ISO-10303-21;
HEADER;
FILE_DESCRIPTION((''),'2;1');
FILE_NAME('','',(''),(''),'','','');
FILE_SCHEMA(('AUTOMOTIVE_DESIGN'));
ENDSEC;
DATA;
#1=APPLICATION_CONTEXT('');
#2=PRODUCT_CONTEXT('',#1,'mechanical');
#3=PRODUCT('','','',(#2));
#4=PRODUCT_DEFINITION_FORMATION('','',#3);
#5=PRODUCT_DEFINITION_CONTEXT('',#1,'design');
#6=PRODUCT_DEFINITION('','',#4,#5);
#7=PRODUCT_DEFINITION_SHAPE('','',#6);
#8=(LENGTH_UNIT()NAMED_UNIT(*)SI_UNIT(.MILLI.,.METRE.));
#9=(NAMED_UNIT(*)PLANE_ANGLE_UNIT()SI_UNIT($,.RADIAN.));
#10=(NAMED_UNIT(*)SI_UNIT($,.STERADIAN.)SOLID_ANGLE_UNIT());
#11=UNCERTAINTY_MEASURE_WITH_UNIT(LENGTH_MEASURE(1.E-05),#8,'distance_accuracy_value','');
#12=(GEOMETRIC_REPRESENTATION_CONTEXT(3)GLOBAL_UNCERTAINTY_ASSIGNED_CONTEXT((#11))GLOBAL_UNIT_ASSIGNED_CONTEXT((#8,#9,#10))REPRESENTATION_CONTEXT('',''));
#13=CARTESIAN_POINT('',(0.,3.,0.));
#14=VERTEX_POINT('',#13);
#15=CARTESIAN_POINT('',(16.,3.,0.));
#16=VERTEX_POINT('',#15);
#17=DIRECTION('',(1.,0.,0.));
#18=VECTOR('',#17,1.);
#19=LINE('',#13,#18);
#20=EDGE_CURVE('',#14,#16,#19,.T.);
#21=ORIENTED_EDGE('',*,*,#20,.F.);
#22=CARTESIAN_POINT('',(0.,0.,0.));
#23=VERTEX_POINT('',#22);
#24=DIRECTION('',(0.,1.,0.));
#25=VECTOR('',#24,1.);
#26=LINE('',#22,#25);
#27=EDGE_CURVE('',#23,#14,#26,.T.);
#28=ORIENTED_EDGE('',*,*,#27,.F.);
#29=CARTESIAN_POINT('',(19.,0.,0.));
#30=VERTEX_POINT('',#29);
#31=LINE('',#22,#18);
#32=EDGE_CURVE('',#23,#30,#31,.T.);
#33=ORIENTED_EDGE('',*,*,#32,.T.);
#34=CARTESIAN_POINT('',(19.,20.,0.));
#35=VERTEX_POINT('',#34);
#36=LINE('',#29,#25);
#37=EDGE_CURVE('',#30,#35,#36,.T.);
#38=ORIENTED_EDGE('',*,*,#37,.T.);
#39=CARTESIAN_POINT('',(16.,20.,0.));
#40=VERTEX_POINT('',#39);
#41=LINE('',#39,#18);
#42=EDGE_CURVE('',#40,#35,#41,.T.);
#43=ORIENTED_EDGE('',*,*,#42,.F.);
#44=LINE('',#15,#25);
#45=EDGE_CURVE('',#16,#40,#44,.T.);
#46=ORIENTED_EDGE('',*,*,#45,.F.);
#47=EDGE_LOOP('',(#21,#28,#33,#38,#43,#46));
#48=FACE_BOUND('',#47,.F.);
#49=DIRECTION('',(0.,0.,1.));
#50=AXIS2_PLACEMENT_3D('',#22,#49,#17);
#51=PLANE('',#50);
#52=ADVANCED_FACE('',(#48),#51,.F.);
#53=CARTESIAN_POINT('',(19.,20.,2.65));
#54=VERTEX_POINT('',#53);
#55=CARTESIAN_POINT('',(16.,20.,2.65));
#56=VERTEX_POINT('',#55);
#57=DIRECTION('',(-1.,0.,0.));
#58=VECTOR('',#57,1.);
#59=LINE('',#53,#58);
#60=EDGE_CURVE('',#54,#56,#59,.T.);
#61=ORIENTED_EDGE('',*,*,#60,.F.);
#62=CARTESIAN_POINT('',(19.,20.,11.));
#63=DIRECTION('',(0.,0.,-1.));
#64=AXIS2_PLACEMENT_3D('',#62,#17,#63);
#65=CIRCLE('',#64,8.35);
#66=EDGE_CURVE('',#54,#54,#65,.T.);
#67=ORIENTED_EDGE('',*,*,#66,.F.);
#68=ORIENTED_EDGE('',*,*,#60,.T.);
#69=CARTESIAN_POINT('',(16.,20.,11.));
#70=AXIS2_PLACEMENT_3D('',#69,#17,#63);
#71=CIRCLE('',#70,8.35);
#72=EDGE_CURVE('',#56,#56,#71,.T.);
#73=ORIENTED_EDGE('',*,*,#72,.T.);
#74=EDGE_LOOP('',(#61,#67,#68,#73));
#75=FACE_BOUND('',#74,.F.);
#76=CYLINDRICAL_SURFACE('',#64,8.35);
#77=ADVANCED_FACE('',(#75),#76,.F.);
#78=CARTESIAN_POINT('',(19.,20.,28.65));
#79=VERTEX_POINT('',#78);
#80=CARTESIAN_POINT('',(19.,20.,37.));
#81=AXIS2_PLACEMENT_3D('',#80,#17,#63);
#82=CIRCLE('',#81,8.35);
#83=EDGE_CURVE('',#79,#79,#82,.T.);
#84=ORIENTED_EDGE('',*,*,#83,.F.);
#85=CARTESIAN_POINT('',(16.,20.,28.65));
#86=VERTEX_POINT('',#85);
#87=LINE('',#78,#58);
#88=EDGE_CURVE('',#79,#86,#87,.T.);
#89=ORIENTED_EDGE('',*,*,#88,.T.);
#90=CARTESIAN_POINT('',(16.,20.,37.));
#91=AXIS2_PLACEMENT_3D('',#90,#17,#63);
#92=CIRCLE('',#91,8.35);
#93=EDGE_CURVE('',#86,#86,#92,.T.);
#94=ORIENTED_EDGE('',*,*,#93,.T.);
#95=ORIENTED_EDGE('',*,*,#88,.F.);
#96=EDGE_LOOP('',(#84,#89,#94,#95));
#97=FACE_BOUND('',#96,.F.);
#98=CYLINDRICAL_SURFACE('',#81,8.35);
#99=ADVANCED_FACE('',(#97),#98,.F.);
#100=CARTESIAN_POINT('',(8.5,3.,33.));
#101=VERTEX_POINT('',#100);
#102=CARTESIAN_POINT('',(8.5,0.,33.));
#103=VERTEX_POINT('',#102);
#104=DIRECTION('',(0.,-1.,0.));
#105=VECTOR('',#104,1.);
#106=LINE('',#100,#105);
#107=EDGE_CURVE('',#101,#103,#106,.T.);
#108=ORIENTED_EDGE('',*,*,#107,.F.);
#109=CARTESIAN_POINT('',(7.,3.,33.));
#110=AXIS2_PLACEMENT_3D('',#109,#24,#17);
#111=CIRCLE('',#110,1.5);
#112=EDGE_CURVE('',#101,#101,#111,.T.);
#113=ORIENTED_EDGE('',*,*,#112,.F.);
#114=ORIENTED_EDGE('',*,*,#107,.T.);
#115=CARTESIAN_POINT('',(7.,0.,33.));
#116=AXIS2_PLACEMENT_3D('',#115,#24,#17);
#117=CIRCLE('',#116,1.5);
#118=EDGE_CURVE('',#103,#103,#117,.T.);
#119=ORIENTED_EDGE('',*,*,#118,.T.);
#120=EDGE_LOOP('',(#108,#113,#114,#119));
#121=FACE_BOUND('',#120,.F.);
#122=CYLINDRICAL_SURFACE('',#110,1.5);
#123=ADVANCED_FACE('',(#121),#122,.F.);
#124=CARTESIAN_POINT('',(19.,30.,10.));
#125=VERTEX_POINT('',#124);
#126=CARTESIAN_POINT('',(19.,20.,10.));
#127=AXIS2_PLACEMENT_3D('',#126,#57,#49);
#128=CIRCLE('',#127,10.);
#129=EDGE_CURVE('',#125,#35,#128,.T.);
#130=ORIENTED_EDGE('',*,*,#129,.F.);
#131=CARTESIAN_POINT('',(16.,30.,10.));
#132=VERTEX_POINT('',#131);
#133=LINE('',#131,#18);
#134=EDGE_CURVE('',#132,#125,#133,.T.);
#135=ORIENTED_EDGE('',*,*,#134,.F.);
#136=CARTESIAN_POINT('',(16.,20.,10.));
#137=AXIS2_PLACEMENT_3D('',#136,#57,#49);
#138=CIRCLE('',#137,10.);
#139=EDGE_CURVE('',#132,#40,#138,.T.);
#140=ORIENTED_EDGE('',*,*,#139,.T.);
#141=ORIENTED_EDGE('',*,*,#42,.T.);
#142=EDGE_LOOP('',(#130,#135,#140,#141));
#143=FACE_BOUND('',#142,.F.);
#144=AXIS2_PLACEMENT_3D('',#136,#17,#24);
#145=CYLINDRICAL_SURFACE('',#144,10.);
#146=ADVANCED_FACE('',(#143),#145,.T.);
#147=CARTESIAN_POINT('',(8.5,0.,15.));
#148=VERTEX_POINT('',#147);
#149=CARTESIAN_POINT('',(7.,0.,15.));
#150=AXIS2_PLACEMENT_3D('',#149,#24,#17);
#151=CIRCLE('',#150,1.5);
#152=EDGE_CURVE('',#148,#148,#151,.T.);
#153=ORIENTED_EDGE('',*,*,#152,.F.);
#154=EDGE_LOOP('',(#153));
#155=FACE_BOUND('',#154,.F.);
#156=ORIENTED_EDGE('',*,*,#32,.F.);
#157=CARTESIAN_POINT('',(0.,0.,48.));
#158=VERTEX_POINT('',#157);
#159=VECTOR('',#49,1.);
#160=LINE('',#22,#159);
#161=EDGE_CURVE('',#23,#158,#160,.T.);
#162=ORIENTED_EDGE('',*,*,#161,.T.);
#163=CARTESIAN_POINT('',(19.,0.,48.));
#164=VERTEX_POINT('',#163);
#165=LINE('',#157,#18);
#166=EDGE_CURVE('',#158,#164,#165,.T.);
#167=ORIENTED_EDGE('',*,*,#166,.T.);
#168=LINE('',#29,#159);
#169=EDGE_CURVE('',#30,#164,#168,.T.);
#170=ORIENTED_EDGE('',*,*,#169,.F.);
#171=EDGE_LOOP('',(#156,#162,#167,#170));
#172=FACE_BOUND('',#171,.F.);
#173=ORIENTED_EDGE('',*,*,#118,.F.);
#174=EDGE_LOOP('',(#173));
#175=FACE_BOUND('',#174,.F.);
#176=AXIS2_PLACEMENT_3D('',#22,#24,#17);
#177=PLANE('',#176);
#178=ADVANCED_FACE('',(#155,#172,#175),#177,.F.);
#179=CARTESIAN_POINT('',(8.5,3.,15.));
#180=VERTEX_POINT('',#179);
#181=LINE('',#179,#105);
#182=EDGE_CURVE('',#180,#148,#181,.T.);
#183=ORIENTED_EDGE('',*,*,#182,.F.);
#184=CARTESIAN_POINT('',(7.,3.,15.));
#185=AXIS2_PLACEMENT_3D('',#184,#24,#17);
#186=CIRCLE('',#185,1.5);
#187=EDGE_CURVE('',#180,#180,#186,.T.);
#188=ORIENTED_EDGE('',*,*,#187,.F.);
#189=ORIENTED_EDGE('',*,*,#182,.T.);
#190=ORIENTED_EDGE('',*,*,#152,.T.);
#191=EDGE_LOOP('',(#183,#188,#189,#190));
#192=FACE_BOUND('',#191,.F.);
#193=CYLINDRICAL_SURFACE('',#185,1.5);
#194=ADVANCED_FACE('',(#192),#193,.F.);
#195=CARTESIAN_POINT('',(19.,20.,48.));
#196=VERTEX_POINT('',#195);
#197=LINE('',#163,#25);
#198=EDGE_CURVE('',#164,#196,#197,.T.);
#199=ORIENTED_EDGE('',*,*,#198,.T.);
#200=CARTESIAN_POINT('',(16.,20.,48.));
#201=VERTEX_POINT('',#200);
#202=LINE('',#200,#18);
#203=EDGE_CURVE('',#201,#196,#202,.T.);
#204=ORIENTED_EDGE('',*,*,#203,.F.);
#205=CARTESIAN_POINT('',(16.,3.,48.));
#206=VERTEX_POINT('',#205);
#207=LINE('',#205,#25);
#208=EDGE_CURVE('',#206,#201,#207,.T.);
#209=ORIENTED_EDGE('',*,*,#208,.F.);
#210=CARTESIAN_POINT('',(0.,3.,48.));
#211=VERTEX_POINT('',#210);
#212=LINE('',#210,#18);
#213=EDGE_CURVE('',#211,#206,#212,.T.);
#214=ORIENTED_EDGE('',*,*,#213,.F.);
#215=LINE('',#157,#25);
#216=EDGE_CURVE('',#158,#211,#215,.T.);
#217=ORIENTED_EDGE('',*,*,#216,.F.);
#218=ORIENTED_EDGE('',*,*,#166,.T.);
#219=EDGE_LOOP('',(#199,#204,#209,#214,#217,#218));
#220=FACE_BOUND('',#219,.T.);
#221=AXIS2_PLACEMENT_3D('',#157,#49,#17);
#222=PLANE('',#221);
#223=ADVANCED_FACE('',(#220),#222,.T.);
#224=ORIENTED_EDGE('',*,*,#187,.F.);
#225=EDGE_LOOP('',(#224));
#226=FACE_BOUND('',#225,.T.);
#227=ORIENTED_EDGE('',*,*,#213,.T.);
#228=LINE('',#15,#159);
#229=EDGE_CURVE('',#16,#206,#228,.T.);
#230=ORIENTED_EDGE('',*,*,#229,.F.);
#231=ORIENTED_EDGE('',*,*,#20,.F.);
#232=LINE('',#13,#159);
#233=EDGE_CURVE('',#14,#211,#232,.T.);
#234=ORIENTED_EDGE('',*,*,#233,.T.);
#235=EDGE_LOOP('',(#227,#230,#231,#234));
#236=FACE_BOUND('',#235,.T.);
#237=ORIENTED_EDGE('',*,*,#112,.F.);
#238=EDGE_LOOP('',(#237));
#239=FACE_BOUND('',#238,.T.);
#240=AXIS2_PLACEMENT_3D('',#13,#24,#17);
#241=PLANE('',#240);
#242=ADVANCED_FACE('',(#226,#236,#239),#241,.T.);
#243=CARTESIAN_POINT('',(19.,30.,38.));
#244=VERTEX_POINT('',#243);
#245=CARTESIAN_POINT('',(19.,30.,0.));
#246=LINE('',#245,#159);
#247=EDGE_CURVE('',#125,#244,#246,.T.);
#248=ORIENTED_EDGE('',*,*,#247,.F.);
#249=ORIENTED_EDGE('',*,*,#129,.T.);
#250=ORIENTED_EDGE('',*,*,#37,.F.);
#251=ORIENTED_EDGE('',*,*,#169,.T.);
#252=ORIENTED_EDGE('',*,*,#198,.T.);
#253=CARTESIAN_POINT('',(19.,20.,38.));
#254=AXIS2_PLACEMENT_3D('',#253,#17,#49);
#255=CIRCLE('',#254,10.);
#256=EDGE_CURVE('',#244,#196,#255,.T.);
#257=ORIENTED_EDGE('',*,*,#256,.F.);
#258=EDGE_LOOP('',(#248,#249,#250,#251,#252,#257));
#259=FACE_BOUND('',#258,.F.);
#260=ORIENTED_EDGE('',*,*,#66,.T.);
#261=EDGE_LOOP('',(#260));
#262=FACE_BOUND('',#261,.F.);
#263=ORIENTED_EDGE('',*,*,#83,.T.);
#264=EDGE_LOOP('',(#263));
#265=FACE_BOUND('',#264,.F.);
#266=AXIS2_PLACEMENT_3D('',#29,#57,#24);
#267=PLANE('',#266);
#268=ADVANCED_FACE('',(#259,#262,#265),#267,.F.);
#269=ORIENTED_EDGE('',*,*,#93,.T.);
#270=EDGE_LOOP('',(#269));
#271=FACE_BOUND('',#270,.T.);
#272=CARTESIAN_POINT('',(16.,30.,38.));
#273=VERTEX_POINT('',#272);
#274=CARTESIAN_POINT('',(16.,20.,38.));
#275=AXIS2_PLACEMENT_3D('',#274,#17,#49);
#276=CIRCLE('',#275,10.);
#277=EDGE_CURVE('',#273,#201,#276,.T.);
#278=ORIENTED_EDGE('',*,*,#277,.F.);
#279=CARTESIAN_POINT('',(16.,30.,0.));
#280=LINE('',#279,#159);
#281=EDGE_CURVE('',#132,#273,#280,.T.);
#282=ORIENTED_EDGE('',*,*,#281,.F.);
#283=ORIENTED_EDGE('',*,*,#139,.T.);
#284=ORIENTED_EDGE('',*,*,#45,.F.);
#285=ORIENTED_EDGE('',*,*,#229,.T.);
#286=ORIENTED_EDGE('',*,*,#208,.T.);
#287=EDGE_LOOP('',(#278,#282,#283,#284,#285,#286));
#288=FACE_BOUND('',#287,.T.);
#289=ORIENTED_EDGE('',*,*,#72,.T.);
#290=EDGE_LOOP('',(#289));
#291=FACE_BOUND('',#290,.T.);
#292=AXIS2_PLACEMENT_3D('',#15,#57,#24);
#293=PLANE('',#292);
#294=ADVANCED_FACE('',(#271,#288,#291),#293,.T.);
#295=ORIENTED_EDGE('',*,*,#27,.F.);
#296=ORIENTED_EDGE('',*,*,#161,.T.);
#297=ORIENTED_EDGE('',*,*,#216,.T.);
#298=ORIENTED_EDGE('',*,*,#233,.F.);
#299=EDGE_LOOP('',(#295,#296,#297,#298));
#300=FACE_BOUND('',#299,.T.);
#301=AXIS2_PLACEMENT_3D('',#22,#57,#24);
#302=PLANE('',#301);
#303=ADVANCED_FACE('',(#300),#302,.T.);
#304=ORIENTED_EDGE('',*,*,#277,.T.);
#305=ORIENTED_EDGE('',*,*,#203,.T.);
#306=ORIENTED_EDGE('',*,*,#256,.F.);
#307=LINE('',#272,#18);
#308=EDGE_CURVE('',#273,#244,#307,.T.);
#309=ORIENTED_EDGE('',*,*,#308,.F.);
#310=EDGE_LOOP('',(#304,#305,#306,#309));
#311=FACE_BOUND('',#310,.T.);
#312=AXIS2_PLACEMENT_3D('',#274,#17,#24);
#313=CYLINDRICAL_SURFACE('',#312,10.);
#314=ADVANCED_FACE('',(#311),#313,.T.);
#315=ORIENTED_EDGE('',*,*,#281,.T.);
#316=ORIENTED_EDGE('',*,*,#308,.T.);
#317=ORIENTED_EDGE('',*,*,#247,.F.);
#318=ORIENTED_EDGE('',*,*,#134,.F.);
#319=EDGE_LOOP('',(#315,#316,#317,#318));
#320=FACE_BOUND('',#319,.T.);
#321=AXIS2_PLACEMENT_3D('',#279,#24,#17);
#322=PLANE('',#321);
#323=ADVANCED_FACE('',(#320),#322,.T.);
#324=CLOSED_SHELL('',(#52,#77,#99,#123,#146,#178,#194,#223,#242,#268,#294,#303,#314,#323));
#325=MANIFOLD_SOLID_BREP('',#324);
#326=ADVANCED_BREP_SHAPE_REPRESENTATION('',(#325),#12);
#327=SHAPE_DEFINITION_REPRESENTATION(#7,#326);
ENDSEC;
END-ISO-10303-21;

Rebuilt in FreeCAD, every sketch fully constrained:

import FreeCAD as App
import Part
import Sketcher
from FreeCAD import Vector


def edges_at(feature, points):
    """Names of the edges that pass closest to the given points."""
    edges = feature.Shape.Edges
    near = lambda p: min(range(len(edges)), key=lambda i: edges[i].distToShape(Part.Vertex(*p))[0])
    return sorted({f"Edge{near(p) + 1}" for p in points})


def add_polygon(sketch, points):
    """Adds a closed chain of lines whose ends are joined by coincident constraints."""
    first, n = sketch.GeometryCount, len(points)
    for a, b in zip(points, points[1:] + points[:1]):
        sketch.addGeometry(Part.LineSegment(App.Vector(*a, 0), App.Vector(*b, 0)), False)
    for i in range(n):
        sketch.addConstraint(Sketcher.Constraint("Coincident", first + i, 2, first + (i + 1) % n, 1))

doc = App.newDocument("Part")
body = doc.addObject("PartDesign::Body", "Body")

sketch1 = body.newObject("Sketcher::SketchObject", "Sketch")
sketch1.AttachmentSupport = (doc.getObject("XY_Plane"), [""])
sketch1.MapMode = "FlatFace"
add_polygon(sketch1, [(0, 3), (0, 0), (19, 0), (19, 30), (16, 30), (16, 3)])
sketch1.addConstraint([
    Sketcher.Constraint("Vertical", 0),
    Sketcher.Constraint("Horizontal", 1),
    Sketcher.Constraint("Vertical", 2),
    Sketcher.Constraint("Horizontal", 3),
    Sketcher.Constraint("Vertical", 4),
    Sketcher.Constraint("Horizontal", 5),
    Sketcher.Constraint("Coincident", 0, 2, -1, 1),
    Sketcher.Constraint("Equal", 3, 0),
    Sketcher.Constraint("DistanceX", 1, 1, 1, 2, 19.0),
    Sketcher.Constraint("DistanceX", 3, 2, 3, 1, 3.0),
    Sketcher.Constraint("DistanceY", 2, 1, 2, 2, 30.0),
])
pad1 = body.newObject("PartDesign::Pad", "Pad")
pad1.Profile = sketch1
pad1.Length = 48
doc.recompute()

fillet = body.newObject("PartDesign::Fillet", "Fillet")
fillet.Base = (pad1, edges_at(pad1, [(17.5, 30, 0), (17.5, 30, 48)]))
fillet.Radius = 10

sketch2 = body.newObject("Sketcher::SketchObject", "Sketch001")
sketch2.AttachmentSupport = (doc.getObject("YZ_Plane"), [""])
sketch2.MapMode = "FlatFace"
sketch2.AttachmentOffset = App.Placement(Vector(0, 0, 19), App.Rotation())
sketch2.addGeometry([
    Part.Circle(Vector(20, 37, 0), Vector(0, 0, 1), 8.35),
    Part.Circle(Vector(20, 11, 0), Vector(0, 0, 1), 8.35),
], False)
sketch2.addConstraint([
    Sketcher.Constraint("Equal", 0, 1),
    Sketcher.Constraint("Vertical", 0, 3, 1, 3),
    Sketcher.Constraint("Diameter", 0, 16.7),
    Sketcher.Constraint("DistanceY", -1, 1, 1, 3, 11.0),
    Sketcher.Constraint("DistanceX", -1, 1, 0, 3, 20.0),
    Sketcher.Constraint("DistanceY", -1, 1, 0, 3, 37.0),
])
pocket1 = body.newObject("PartDesign::Pocket", "Pocket")
pocket1.Profile = sketch2
pocket1.Length = 48

sketch3 = body.newObject("Sketcher::SketchObject", "Sketch002")
sketch3.AttachmentSupport = (doc.getObject("XZ_Plane"), [""])
sketch3.MapMode = "FlatFace"
sketch3.AttachmentOffset = App.Placement(Vector(0, 0, -3), App.Rotation())
sketch3.addGeometry([
    Part.Circle(Vector(7, 33, 0), Vector(0, 0, 1), 1.5),
    Part.Circle(Vector(7, 15, 0), Vector(0, 0, 1), 1.5),
], False)
sketch3.addConstraint([
    Sketcher.Constraint("Equal", 0, 1),
    Sketcher.Constraint("Vertical", 0, 3, 1, 3),
    Sketcher.Constraint("Diameter", 0, 3.0),
    Sketcher.Constraint("DistanceX", -1, 1, 0, 3, 7.0),
    Sketcher.Constraint("DistanceY", -1, 1, 1, 3, 15.0),
    Sketcher.Constraint("DistanceY", -1, 1, 0, 3, 33.0),
])
pocket2 = body.newObject("PartDesign::Pocket", "Pocket001")
pocket2.Profile = sketch3
pocket2.Length = 48
pocket2.Reversed = True

doc.recompute()
